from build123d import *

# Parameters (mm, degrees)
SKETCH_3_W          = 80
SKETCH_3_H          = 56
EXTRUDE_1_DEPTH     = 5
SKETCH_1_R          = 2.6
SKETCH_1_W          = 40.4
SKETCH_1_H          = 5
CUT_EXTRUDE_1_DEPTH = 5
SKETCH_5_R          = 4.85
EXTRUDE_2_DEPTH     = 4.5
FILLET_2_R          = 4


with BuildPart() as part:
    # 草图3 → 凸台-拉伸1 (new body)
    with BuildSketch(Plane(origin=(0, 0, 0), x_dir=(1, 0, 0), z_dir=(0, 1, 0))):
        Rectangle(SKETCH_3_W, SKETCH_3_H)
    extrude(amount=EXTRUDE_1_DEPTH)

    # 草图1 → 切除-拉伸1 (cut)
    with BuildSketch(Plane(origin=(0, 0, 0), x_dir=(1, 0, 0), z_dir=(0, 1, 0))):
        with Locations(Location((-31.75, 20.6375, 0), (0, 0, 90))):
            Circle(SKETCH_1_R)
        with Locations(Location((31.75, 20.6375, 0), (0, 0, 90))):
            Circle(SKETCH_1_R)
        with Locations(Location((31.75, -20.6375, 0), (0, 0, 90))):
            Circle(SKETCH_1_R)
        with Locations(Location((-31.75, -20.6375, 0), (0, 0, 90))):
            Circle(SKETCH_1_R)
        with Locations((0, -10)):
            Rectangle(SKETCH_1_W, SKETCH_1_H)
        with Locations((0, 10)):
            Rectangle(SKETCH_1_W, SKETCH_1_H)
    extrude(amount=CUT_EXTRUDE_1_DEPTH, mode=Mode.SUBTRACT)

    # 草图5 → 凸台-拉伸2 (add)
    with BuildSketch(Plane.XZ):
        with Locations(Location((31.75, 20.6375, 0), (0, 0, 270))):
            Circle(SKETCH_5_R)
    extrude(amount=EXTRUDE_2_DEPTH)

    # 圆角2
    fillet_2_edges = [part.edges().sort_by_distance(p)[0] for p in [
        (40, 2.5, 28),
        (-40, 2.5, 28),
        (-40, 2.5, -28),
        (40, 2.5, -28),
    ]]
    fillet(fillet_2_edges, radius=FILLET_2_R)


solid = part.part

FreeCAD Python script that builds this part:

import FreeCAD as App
import Part
import Sketcher
Q = App.Units.Quantity


def edges_at(feature, points):
    """Names of the edges that pass closest to the given points."""
    edges = feature.Shape.Edges
    near = lambda p: min(range(len(edges)), key=lambda i: edges[i].distToShape(Part.Vertex(*p))[0])
    return sorted({f"Edge{near(p) + 1}" for p in points})


def add_polygon(sketch, points):
    """Adds a closed chain of lines whose ends are joined by coincident constraints."""
    first, n = sketch.GeometryCount, len(points)
    for a, b in zip(points, points[1:] + points[:1]):
        sketch.addGeometry(Part.LineSegment(App.Vector(*a, 0), App.Vector(*b, 0)), False)
    for i in range(n):
        sketch.addConstraint(Sketcher.Constraint("Coincident", first + i, 2, first + (i + 1) % n, 1))

doc = App.newDocument("Part")
body = doc.addObject("PartDesign::Body", "Body")

# Sketch on XZ plane
sketch1 = doc.addObject("Sketcher::SketchObject", "Sketch")
body.addObject(sketch1)
sketch1.AttachmentSupport = (doc.XZ_Plane, [""])
sketch1.MapMode = "FlatFace"
add_polygon(sketch1, [(-40, -28), (-40, 28), (40, 28), (40, -28)])  # lines 0-3
sketch1.addConstraint(Sketcher.Constraint("Vertical", 0))
sketch1.addConstraint(Sketcher.Constraint("Horizontal", 1))
sketch1.addConstraint(Sketcher.Constraint("Vertical", 2))
sketch1.addConstraint(Sketcher.Constraint("Horizontal", 3))
sketch1.addConstraint(Sketcher.Constraint("Symmetric", 0, 2, 2, 2, -1, 1))
sketch1.addConstraint(Sketcher.Constraint("DistanceX", 1, 1, 1, 2, Q("80 mm")))
sketch1.addConstraint(Sketcher.Constraint("DistanceY", 0, 1, 0, 2, Q("56 mm")))
pad1 = doc.addObject("PartDesign::Pad", "Pad")
body.addObject(pad1)
pad1.Profile = sketch1
pad1.Length = 5
pad1.Reversed = True

# Sketch on XZ plane
sketch2 = doc.addObject("Sketcher::SketchObject", "Sketch001")
body.addObject(sketch2)
sketch2.AttachmentSupport = (doc.XZ_Plane, [""])
sketch2.MapMode = "FlatFace"
sketch2.addGeometry(Part.Circle(App.Vector(-31.8, -20.6, 0), App.Vector(0, 0, 1), 2.6), False)  # 0
sketch2.addGeometry(Part.Circle(App.Vector(31.8, -20.6, 0), App.Vector(0, 0, 1), 2.6), False)  # 1
sketch2.addGeometry(Part.Circle(App.Vector(31.8, 20.6, 0), App.Vector(0, 0, 1), 2.6), False)  # 2
sketch2.addGeometry(Part.Circle(App.Vector(-31.8, 20.6, 0), App.Vector(0, 0, 1), 2.6), False)  # 3
add_polygon(sketch2, [(-20.2, 7.5), (-20.2, 12.5), (20.2, 12.5), (20.2, 7.5)])  # lines 4-7
add_polygon(sketch2, [(-20.2, -12.5), (-20.2, -7.5), (20.2, -7.5), (20.2, -12.5)])  # lines 8-11
sketch2.addConstraint(Sketcher.Constraint("Vertical", 4))
sketch2.addConstraint(Sketcher.Constraint("Horizontal", 5))
sketch2.addConstraint(Sketcher.Constraint("Vertical", 6))
sketch2.addConstraint(Sketcher.Constraint("Horizontal", 7))
sketch2.addConstraint(Sketcher.Constraint("Vertical", 8))
sketch2.addConstraint(Sketcher.Constraint("Horizontal", 9))
sketch2.addConstraint(Sketcher.Constraint("Vertical", 10))
sketch2.addConstraint(Sketcher.Constraint("Horizontal", 11))
sketch2.addConstraint(Sketcher.Constraint("Equal", 0, 1))
sketch2.addConstraint(Sketcher.Constraint("Equal", 1, 2))
sketch2.addConstraint(Sketcher.Constraint("Equal", 2, 3))
sketch2.addConstraint(Sketcher.Constraint("Symmetric", 0, 3, 2, 3, -1, 1))
sketch2.addConstraint(Sketcher.Constraint("Symmetric", 1, 3, 3, 3, -1, 1))
sketch2.addConstraint(Sketcher.Constraint("Symmetric", 6, 2, 8, 2, -1, 1))
sketch2.addConstraint(Sketcher.Constraint("Symmetric", 4, 2, 10, 2, -1, 1))
sketch2.addConstraint(Sketcher.Constraint("Symmetric", 0, 3, 1, 3, -2))
sketch2.addConstraint(Sketcher.Constraint("Vertical", 7, 2, 8, 2))
sketch2.addConstraint(Sketcher.Constraint("Diameter", 0, Q("5.2 mm")))
sketch2.addConstraint(Sketcher.Constraint("DistanceY", 4, 1, 4, 2, Q("5 mm")))
sketch2.addConstraint(Sketcher.Constraint("DistanceX", 5, 1, 5, 2, Q("40.4 mm")))
sketch2.addConstraint(Sketcher.Constraint("DistanceY", 8, 2, 7, 2, Q("15 mm")))
sketch2.addConstraint(Sketcher.Constraint("DistanceX", 0, 3, 1, 3, Q("63.5 mm")))
sketch2.addConstraint(Sketcher.Constraint("DistanceY", 1, 3, 2, 3, Q("41.275 mm")))
pocket1 = doc.addObject("PartDesign::Pocket", "Pocket")
body.addObject(pocket1)
pocket1.Profile = sketch2
pocket1.Length = 5

# Sketch on XZ plane
sketch3 = doc.addObject("Sketcher::SketchObject", "Sketch002")
body.addObject(sketch3)
sketch3.AttachmentSupport = (doc.XZ_Plane, [""])
sketch3.MapMode = "FlatFace"
sketch3.addGeometry(Part.Circle(App.Vector(31.8, 20.6, 0), App.Vector(0, 0, 1), 4.8), False)
sketch3.addConstraint(Sketcher.Constraint("Diameter", 0, Q("9.7 mm")))
sketch3.addConstraint(Sketcher.Constraint("DistanceX", -1, 1, 0, 3, Q("31.75 mm")))
sketch3.addConstraint(Sketcher.Constraint("DistanceY", -1, 1, 0, 3, Q("20.6375 mm")))
pad2 = doc.addObject("PartDesign::Pad", "Pad001")
body.addObject(pad2)
pad2.Profile = sketch3
pad2.Length = 4.5
doc.recompute()

fillet = doc.addObject("PartDesign::Fillet", "Fillet")
body.addObject(fillet)
fillet.Base = (pad2, edges_at(pad2, [
    (40, 2.5, 28),
    (-40, 2.5, 28),
    (-40, 2.5, -28),
    (40, 2.5, -28),
]))
fillet.Radius = 4

doc.recompute()
